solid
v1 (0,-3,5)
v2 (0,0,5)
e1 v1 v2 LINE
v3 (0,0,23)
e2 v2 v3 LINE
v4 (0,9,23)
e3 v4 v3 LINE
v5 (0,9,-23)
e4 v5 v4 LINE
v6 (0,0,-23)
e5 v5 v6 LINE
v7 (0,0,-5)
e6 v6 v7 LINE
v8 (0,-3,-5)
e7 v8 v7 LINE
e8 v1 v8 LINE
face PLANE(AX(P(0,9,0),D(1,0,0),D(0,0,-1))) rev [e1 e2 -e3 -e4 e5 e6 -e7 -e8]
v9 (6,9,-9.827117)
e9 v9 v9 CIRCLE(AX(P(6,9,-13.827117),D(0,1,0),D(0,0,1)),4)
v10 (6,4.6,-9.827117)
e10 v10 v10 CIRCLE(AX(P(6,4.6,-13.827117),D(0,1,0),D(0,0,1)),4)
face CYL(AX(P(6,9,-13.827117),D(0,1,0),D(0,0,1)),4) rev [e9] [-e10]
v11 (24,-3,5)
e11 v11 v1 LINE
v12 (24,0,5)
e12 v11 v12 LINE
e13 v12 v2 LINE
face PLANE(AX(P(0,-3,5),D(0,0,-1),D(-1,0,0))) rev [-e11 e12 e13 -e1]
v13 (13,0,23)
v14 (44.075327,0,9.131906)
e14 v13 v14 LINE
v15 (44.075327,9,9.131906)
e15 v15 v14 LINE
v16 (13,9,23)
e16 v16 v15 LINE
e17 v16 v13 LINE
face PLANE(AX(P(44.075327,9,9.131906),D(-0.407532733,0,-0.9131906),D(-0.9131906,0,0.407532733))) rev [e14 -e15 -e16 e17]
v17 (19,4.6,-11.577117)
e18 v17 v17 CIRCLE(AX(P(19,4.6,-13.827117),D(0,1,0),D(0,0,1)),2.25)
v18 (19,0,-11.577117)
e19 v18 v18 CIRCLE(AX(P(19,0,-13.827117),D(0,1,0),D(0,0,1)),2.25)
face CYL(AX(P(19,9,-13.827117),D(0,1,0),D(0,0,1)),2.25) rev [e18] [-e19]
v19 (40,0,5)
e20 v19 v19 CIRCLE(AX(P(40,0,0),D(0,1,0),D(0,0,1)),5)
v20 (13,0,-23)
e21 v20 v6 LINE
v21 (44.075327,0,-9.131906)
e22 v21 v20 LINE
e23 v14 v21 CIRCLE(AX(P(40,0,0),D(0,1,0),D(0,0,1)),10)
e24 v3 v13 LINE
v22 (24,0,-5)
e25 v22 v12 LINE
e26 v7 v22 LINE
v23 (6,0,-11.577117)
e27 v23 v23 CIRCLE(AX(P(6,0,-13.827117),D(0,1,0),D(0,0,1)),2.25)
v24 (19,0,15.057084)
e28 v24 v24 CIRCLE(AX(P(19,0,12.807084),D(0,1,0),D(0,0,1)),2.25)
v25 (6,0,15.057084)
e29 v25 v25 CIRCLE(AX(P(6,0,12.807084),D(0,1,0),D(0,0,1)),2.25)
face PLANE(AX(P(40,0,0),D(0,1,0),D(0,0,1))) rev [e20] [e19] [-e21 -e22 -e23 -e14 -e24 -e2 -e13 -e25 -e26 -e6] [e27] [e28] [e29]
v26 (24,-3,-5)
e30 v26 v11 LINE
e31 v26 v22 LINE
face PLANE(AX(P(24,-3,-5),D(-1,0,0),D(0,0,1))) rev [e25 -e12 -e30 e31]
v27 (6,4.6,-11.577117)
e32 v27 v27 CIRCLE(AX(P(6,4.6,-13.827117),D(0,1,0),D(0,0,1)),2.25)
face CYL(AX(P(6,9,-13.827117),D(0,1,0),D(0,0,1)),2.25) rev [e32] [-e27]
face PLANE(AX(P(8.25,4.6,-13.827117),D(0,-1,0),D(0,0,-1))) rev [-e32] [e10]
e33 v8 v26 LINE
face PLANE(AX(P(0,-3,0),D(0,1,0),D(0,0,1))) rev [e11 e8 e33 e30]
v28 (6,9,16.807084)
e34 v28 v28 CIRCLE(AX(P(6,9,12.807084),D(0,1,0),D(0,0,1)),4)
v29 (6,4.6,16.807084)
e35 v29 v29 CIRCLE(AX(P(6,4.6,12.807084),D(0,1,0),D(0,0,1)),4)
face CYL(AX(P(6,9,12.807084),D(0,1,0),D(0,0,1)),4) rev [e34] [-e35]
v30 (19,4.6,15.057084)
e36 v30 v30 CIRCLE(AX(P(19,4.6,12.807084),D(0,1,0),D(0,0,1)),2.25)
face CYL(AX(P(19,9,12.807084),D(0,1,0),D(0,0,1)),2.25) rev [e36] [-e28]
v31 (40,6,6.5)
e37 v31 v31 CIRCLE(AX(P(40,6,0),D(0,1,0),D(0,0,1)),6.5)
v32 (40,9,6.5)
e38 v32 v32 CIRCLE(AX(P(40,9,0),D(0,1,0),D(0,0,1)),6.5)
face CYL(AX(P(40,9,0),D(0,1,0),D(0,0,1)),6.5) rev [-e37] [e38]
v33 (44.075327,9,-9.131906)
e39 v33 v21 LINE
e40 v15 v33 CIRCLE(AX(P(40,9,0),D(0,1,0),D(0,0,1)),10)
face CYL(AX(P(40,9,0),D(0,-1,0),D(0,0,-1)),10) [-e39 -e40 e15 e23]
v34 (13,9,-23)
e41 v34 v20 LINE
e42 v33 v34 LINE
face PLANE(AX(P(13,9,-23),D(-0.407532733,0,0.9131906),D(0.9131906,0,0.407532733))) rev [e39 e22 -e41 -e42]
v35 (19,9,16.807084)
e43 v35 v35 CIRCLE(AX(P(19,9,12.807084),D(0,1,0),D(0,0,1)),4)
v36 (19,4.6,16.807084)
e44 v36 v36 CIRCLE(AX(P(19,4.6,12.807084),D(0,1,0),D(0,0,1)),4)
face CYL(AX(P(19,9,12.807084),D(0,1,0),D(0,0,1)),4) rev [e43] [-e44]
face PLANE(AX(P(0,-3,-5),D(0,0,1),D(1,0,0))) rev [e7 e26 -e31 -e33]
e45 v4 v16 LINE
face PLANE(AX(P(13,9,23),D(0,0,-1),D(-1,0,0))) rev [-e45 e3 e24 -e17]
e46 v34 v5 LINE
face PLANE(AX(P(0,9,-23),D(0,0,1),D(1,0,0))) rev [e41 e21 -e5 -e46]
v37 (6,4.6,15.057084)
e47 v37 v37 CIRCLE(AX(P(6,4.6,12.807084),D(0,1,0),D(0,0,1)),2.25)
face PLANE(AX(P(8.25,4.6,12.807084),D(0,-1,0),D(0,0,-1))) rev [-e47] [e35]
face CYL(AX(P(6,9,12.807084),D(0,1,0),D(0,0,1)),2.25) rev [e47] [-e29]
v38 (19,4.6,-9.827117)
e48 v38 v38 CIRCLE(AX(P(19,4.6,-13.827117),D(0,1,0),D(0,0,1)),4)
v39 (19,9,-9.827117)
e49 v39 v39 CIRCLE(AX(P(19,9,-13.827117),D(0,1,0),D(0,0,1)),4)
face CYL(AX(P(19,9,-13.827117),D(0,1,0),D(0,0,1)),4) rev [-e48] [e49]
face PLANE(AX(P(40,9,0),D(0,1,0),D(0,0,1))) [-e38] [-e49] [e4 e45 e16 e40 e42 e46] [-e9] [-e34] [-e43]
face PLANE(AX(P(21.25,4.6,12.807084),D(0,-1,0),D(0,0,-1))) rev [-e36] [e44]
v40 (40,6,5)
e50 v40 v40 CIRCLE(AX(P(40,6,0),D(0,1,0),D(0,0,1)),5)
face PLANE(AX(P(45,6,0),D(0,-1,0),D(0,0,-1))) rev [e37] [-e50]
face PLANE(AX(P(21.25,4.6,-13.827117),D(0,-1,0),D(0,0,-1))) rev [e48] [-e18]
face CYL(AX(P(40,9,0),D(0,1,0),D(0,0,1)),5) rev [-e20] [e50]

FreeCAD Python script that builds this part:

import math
import FreeCAD as App
import Part
import Sketcher

V = App.Vector

doc = App.newDocument("Part")
body = doc.addObject("PartDesign::Body", "Body")

sketch1 = body.newObject("Sketcher::SketchObject", "Sketch")
sketch1.AttachmentSupport = (doc.getObject("XZ_Plane"), [""])
sketch1.MapMode = "FlatFace"
sketch1.addGeometry([
    Part.LineSegment(V(13, -23, 0), V(0, -23, 0)),
    Part.LineSegment(V(0, -23, 0), V(0, 23, 0)),
    Part.LineSegment(V(0, 23, 0), V(13, 23, 0)),
    Part.LineSegment(V(13, 23, 0), V(44.075327, 9.131906, 0)),
    Part.ArcOfCircle(Part.Circle(V(40, 0, 0), V(0, 0, 1), 10), math.radians(-65.950061), math.radians(65.950061)),
    Part.LineSegment(V(44.075327, -9.131906, 0), V(13, -23, 0)),
], False)
sketch1.addConstraint([
    Sketcher.Constraint("Coincident", 0, 2, 1, 1),
    Sketcher.Constraint("Coincident", 1, 2, 2, 1),
    Sketcher.Constraint("Coincident", 2, 2, 3, 1),
    Sketcher.Constraint("Tangent", 3, 2, 4, 2),
    Sketcher.Constraint("Tangent", 4, 1, 5, 1),
    Sketcher.Constraint("Coincident", 5, 2, 0, 1),
    Sketcher.Constraint("Horizontal", 0),
    Sketcher.Constraint("Vertical", 1),
    Sketcher.Constraint("Horizontal", 2),
    Sketcher.Constraint("Symmetric", 0, 2, 1, 2, -1, 1),
    Sketcher.Constraint("Symmetric", 3, 2, 4, 1, -1),
    Sketcher.Constraint("Radius", 4, 10.0),
    Sketcher.Constraint("DistanceX", 0, 2, 0, 1, 13.0),
    Sketcher.Constraint("DistanceY", 1, 1, 1, 2, 46.0),
    Sketcher.Constraint("DistanceX", -1, 1, 4, 3, 40.0),
])
pad1 = body.newObject("PartDesign::Pad", "Pad")
pad1.Profile = sketch1
pad1.Length = 9
pad1.Reversed = True

sketch2 = body.newObject("Sketcher::SketchObject", "Sketch001")
sketch2.AttachmentSupport = (doc.getObject("XZ_Plane"), [""])
sketch2.MapMode = "FlatFace"
sketch2.addGeometry([
    Part.LineSegment(V(0, 5, 0), V(0, -5, 0)),
    Part.LineSegment(V(0, -5, 0), V(24, -5, 0)),
    Part.LineSegment(V(24, -5, 0), V(24, 5, 0)),
    Part.LineSegment(V(24, 5, 0), V(0, 5, 0)),
], False)
sketch2.addConstraint([
    Sketcher.Constraint("Coincident", 0, 2, 1, 1),
    Sketcher.Constraint("Coincident", 1, 2, 2, 1),
    Sketcher.Constraint("Coincident", 2, 2, 3, 1),
    Sketcher.Constraint("Coincident", 3, 2, 0, 1),
    Sketcher.Constraint("Vertical", 0),
    Sketcher.Constraint("Horizontal", 1),
    Sketcher.Constraint("Vertical", 2),
    Sketcher.Constraint("Horizontal", 3),
    Sketcher.Constraint("Symmetric", 0, 2, 3, 2, -1, 1),
    Sketcher.Constraint("DistanceX", 1, 1, 1, 2, 24.0),
    Sketcher.Constraint("DistanceY", 0, 2, 0, 1, 10.0),
])
pad2 = body.newObject("PartDesign::Pad", "Pad001")
pad2.Profile = sketch2
pad2.Length = 3

sketch3 = body.newObject("Sketcher::SketchObject", "Sketch002")
sketch3.AttachmentSupport = (doc.getObject("XZ_Plane"), [""])
sketch3.MapMode = "FlatFace"
sketch3.AttachmentOffset = App.Placement(V(0, 0, -9), App.Rotation())
sketch3.addGeometry([
    Part.Circle(V(6, -13.827117, 0), V(0, 0, 1), 2.25),
    Part.Circle(V(19, -13.827117, 0), V(0, 0, 1), 2.25),
    Part.Circle(V(6, 12.807084, 0), V(0, 0, 1), 2.25),
    Part.Circle(V(19, 12.807084, 0), V(0, 0, 1), 2.25),
], False)
sketch3.addConstraint([
    Sketcher.Constraint("Equal", 0, 1),
    Sketcher.Constraint("Equal", 1, 2),
    Sketcher.Constraint("Equal", 2, 3),
    Sketcher.Constraint("Horizontal", 0, 3, 1, 3),
    Sketcher.Constraint("Horizontal", 2, 3, 3, 3),
    Sketcher.Constraint("Vertical", 0, 3, 2, 3),
    Sketcher.Constraint("Vertical", 1, 3, 3, 3),
    Sketcher.Constraint("Diameter", 0, 4.5),
    Sketcher.Constraint("DistanceX", -1, 1, 0, 3, 6.0),
    Sketcher.Constraint("DistanceX", -1, 1, 1, 3, 19.0),
    Sketcher.Constraint("DistanceY", 0, 3, 2, 3, 26.6342),
    Sketcher.Constraint("DistanceY", 0, 3, -1, 1, 13.827117),
])
doc.recompute()
hole = body.newObject("PartDesign::Hole", "Hole")
hole.Profile = sketch3
hole.ThreadType = "None"
hole.Diameter = 4.5
hole.DepthType = "Dimension"
hole.Depth = 9
hole.DrillPoint = "Angled"
hole.DrillPointAngle = 118
hole.HoleCutType = "Counterbore"
hole.HoleCutDiameter = 8
hole.HoleCutDepth = 4.4
hole.Reversed = True

sketch4 = body.newObject("Sketcher::SketchObject", "Sketch003")
sketch4.AttachmentSupport = (doc.getObject("XZ_Plane"), [""])
sketch4.MapMode = "FlatFace"
sketch4.AttachmentOffset = App.Placement(V(0, 0, -9), App.Rotation())
sketch4.addGeometry(Part.Circle(V(40, 0, 0), V(0, 0, 1), 5), False)
sketch4.addConstraint([
    Sketcher.Constraint("PointOnObject", 0, 3, -1),
    Sketcher.Constraint("Diameter", 0, 10.0),
    Sketcher.Constraint("DistanceX", -1, 1, 0, 3, 40.0),
])
doc.recompute()
hole2 = body.newObject("PartDesign::Hole", "Hole001")
hole2.Profile = sketch4
hole2.ThreadType = "None"
hole2.Diameter = 10
hole2.DepthType = "ThroughAll"
hole2.HoleCutType = "Counterbore"
hole2.HoleCutDiameter = 13
hole2.HoleCutDepth = 3
hole2.Reversed = True

doc.recompute()
